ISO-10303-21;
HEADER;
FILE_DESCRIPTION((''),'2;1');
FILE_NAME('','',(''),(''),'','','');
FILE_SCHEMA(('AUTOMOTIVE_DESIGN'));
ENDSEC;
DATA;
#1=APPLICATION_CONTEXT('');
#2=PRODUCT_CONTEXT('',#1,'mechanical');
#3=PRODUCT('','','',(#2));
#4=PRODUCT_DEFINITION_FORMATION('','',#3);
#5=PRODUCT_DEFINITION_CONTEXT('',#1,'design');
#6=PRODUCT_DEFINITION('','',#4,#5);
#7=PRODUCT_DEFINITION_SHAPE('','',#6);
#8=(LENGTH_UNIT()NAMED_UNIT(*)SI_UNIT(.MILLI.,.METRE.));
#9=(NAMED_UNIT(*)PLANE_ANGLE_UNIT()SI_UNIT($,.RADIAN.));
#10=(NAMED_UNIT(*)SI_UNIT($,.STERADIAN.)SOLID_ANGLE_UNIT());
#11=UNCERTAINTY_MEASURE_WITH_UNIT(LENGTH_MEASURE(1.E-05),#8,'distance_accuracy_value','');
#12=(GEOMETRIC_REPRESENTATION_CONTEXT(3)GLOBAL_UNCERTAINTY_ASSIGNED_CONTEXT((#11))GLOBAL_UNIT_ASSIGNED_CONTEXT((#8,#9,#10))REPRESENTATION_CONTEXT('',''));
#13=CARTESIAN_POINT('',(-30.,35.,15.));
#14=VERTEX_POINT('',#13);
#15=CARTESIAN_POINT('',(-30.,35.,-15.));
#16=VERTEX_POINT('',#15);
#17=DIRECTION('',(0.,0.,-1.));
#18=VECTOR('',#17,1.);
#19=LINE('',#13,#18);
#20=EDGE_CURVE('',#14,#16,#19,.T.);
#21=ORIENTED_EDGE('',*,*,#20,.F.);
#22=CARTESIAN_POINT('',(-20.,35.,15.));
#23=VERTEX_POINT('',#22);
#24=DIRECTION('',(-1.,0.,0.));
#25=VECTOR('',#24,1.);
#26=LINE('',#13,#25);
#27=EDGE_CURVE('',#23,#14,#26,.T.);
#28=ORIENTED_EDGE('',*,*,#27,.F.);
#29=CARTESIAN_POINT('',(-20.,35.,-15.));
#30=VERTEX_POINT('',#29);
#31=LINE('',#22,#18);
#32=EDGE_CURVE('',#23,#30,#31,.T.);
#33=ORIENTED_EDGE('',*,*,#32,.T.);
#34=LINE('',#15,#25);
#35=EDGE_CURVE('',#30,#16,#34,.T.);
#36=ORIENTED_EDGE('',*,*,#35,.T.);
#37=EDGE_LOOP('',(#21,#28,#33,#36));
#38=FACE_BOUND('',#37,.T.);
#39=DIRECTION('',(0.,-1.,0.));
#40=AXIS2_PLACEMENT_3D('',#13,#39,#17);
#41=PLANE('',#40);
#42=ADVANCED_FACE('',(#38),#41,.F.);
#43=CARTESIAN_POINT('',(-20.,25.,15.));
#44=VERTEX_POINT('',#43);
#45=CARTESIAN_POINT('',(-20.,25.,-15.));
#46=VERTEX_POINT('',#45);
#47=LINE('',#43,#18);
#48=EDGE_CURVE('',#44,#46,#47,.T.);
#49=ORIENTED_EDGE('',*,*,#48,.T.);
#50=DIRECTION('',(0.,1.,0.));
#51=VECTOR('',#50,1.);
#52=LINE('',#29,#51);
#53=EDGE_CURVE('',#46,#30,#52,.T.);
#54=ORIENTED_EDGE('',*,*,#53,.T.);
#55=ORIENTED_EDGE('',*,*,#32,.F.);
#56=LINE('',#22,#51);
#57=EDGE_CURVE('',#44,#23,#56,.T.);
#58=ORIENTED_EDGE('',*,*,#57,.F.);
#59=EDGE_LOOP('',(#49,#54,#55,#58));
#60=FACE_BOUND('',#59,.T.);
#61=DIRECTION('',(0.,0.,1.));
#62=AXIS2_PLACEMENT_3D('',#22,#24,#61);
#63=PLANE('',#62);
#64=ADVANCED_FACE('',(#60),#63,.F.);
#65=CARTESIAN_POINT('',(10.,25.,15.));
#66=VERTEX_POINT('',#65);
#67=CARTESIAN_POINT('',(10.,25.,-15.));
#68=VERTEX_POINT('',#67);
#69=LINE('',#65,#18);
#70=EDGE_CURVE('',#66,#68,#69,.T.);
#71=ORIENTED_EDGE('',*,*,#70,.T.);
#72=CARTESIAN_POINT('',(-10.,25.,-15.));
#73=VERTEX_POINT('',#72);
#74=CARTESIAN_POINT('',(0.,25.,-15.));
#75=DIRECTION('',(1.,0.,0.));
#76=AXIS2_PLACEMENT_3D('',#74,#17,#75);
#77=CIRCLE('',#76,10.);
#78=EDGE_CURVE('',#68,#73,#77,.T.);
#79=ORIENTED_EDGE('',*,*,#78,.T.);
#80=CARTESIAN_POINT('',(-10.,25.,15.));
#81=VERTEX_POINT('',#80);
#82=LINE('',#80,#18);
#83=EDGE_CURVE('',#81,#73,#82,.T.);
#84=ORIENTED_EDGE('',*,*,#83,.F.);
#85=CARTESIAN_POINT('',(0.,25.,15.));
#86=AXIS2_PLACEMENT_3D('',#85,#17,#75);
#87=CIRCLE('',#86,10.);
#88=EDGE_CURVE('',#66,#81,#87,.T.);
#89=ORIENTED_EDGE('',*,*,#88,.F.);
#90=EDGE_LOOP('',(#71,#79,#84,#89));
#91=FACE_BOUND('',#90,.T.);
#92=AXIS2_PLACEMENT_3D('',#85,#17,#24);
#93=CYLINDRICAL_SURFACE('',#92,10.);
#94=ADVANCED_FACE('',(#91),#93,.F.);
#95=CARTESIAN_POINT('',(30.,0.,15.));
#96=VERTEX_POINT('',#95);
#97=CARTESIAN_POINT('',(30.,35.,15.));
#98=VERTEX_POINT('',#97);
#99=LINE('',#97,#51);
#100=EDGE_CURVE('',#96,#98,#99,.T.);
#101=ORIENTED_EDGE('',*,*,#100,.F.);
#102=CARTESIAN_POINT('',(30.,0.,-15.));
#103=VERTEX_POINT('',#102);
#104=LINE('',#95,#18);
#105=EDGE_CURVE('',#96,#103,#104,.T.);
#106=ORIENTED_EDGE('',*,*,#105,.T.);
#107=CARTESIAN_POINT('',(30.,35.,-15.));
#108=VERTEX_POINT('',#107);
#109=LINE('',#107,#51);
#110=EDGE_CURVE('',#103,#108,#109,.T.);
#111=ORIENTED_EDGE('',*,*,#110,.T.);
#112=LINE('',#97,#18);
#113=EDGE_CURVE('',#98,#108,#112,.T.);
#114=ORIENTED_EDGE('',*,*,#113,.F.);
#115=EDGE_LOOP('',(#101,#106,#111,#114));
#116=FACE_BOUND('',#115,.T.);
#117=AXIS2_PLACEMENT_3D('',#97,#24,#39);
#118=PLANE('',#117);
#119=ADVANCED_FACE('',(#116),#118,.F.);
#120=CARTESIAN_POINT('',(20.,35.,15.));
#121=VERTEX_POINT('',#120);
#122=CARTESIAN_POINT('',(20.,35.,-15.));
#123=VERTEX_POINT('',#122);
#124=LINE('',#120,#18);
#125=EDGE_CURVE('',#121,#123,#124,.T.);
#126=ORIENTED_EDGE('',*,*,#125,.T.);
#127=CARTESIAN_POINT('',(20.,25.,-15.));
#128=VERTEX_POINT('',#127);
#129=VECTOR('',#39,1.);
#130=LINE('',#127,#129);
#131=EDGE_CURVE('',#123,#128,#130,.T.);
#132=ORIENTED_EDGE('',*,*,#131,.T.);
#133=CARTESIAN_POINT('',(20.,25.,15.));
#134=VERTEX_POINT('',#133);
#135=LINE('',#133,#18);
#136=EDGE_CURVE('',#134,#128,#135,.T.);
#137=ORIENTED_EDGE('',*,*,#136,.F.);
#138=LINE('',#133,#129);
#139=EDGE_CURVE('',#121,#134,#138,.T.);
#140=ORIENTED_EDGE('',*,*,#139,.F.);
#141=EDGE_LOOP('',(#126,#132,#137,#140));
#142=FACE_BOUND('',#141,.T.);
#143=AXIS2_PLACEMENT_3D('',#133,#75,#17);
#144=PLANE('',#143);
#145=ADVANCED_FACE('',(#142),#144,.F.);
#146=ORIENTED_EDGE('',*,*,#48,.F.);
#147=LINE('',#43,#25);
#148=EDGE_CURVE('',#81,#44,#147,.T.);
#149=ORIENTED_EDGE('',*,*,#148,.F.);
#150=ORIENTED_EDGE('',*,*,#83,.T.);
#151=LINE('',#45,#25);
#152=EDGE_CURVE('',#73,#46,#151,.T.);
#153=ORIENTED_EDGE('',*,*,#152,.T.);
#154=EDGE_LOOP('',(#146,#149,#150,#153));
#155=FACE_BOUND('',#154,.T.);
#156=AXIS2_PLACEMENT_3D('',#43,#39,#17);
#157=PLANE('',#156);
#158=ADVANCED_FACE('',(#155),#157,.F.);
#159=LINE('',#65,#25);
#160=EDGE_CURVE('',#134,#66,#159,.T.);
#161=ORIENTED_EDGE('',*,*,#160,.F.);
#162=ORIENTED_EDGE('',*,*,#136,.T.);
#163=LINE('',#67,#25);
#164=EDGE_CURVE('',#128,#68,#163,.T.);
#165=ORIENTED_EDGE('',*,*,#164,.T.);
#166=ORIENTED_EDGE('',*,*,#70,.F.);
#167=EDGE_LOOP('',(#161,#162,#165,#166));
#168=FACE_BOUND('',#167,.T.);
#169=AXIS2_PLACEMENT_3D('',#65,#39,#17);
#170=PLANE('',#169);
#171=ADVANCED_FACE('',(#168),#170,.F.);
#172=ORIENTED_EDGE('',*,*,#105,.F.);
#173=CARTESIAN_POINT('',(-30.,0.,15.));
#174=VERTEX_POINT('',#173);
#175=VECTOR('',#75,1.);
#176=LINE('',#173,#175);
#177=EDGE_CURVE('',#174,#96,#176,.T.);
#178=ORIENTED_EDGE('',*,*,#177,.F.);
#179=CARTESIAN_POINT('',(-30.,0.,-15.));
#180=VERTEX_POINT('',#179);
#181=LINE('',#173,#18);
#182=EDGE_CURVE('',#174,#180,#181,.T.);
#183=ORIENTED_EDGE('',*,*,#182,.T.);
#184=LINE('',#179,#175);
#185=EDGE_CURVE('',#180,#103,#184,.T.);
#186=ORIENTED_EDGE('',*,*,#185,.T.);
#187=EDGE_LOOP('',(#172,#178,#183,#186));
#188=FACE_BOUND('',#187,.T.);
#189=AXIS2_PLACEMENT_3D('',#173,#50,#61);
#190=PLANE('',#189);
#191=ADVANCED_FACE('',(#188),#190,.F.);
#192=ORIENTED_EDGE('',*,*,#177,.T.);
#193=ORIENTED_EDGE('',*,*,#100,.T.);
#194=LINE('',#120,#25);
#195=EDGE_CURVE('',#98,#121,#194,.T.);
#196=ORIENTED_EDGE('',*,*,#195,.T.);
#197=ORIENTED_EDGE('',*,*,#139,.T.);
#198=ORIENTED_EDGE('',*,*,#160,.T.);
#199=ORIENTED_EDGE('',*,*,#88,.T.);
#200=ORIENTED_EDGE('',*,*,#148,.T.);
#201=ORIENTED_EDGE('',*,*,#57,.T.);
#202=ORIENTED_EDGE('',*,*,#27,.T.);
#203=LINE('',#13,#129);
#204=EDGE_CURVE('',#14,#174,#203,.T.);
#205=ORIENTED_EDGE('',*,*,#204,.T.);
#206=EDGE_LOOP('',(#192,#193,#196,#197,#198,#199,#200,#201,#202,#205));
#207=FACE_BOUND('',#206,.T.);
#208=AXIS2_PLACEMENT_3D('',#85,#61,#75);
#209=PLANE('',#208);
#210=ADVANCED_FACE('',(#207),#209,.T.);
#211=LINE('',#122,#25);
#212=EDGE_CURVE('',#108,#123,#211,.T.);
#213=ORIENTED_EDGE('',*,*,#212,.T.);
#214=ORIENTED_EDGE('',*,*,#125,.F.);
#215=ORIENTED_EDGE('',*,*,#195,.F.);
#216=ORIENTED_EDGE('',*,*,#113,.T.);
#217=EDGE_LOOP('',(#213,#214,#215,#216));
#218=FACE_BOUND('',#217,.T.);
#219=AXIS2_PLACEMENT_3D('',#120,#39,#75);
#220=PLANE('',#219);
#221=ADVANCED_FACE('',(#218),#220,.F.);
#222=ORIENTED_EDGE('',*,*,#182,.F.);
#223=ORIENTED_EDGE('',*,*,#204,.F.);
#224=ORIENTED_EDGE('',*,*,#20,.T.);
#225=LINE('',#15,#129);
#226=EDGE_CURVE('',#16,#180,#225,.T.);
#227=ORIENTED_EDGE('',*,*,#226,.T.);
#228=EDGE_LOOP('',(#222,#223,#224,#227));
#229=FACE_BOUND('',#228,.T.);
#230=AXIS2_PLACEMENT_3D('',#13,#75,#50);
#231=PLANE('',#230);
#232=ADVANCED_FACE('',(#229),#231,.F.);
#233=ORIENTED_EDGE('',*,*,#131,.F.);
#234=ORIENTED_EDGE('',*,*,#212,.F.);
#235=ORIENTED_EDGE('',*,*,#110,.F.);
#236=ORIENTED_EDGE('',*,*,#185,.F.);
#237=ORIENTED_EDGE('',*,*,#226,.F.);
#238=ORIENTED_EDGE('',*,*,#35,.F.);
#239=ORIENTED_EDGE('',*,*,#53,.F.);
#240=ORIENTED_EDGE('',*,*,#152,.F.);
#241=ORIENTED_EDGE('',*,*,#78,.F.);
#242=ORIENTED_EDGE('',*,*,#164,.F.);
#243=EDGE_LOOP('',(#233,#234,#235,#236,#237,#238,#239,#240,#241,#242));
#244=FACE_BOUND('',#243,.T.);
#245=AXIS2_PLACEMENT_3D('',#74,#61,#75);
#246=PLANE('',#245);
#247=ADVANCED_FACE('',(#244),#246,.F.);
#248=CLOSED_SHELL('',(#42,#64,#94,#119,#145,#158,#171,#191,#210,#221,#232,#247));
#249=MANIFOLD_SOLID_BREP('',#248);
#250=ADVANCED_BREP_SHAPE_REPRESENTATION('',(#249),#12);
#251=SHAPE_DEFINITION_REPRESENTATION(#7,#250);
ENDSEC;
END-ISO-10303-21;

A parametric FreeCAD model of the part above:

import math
import FreeCAD as App
import Part
import Sketcher

V = App.Vector

doc = App.newDocument("Part")
body = doc.addObject("PartDesign::Body", "Body")

# Sketch on XY plane
sketch1 = body.newObject("Sketcher::SketchObject", "Sketch")
sketch1.AttachmentSupport = (doc.getObject("XY_Plane"), [""])
sketch1.MapMode = "FlatFace"
sketch1.addGeometry([
    Part.LineSegment(V(-20, 25, 0), V(-20, 35, 0)),  # 0
    Part.LineSegment(V(-20, 35, 0), V(-30, 35, 0)),  # 1
    Part.LineSegment(V(-30, 35, 0), V(-30, 0, 0)),  # 2
    Part.LineSegment(V(-30, 0, 0), V(30, 0, 0)),  # 3
    Part.LineSegment(V(30, 0, 0), V(30, 35, 0)),  # 4
    Part.LineSegment(V(30, 35, 0), V(20, 35, 0)),  # 5
    Part.LineSegment(V(20, 35, 0), V(20, 25, 0)),  # 6
    Part.LineSegment(V(20, 25, 0), V(10, 25, 0)),  # 7
    Part.ArcOfCircle(Part.Circle(V(0, 25, 0), V(0, 0, 1), 10), math.radians(180), math.radians(360)),  # 8
    Part.LineSegment(V(-10, 25, 0), V(-20, 25, 0)),  # 9
], False)
sketch1.addConstraint([
    Sketcher.Constraint("Coincident", 0, 2, 1, 1),
    Sketcher.Constraint("Coincident", 1, 2, 2, 1),
    Sketcher.Constraint("Coincident", 2, 2, 3, 1),
    Sketcher.Constraint("Coincident", 3, 2, 4, 1),
    Sketcher.Constraint("Coincident", 4, 2, 5, 1),
    Sketcher.Constraint("Coincident", 5, 2, 6, 1),
    Sketcher.Constraint("Coincident", 6, 2, 7, 1),
    Sketcher.Constraint("Coincident", 7, 2, 8, 2),
    Sketcher.Constraint("Coincident", 8, 1, 9, 1),
    Sketcher.Constraint("Coincident", 9, 2, 0, 1),
    Sketcher.Constraint("Vertical", 0),
    Sketcher.Constraint("Horizontal", 1),
    Sketcher.Constraint("Vertical", 2),
    Sketcher.Constraint("Horizontal", 3),
    Sketcher.Constraint("Vertical", 4),
    Sketcher.Constraint("Horizontal", 5),
    Sketcher.Constraint("Vertical", 6),
    Sketcher.Constraint("Horizontal", 7),
    Sketcher.Constraint("Horizontal", 9),
    Sketcher.Constraint("Symmetric", 2, 2, 3, 2, -1, 1),
    Sketcher.Constraint("Symmetric", 0, 2, 5, 2, -2),
    Sketcher.Constraint("Symmetric", 7, 2, 8, 1, -2),
    Sketcher.Constraint("Horizontal", 8, 3, 6, 2),
    Sketcher.Constraint("Equal", 5, 7),
    Sketcher.Constraint("Equal", 9, 0),
    Sketcher.Constraint("Radius", 8, 10.0),
    Sketcher.Constraint("DistanceX", 1, 2, 1, 1, 10.0),
    Sketcher.Constraint("DistanceY", 2, 2, 2, 1, 35.0),
])
pad1 = body.newObject("PartDesign::Pad", "Pad")
pad1.Profile = sketch1
pad1.Length = 30
pad1.Midplane = True

doc.recompute()
